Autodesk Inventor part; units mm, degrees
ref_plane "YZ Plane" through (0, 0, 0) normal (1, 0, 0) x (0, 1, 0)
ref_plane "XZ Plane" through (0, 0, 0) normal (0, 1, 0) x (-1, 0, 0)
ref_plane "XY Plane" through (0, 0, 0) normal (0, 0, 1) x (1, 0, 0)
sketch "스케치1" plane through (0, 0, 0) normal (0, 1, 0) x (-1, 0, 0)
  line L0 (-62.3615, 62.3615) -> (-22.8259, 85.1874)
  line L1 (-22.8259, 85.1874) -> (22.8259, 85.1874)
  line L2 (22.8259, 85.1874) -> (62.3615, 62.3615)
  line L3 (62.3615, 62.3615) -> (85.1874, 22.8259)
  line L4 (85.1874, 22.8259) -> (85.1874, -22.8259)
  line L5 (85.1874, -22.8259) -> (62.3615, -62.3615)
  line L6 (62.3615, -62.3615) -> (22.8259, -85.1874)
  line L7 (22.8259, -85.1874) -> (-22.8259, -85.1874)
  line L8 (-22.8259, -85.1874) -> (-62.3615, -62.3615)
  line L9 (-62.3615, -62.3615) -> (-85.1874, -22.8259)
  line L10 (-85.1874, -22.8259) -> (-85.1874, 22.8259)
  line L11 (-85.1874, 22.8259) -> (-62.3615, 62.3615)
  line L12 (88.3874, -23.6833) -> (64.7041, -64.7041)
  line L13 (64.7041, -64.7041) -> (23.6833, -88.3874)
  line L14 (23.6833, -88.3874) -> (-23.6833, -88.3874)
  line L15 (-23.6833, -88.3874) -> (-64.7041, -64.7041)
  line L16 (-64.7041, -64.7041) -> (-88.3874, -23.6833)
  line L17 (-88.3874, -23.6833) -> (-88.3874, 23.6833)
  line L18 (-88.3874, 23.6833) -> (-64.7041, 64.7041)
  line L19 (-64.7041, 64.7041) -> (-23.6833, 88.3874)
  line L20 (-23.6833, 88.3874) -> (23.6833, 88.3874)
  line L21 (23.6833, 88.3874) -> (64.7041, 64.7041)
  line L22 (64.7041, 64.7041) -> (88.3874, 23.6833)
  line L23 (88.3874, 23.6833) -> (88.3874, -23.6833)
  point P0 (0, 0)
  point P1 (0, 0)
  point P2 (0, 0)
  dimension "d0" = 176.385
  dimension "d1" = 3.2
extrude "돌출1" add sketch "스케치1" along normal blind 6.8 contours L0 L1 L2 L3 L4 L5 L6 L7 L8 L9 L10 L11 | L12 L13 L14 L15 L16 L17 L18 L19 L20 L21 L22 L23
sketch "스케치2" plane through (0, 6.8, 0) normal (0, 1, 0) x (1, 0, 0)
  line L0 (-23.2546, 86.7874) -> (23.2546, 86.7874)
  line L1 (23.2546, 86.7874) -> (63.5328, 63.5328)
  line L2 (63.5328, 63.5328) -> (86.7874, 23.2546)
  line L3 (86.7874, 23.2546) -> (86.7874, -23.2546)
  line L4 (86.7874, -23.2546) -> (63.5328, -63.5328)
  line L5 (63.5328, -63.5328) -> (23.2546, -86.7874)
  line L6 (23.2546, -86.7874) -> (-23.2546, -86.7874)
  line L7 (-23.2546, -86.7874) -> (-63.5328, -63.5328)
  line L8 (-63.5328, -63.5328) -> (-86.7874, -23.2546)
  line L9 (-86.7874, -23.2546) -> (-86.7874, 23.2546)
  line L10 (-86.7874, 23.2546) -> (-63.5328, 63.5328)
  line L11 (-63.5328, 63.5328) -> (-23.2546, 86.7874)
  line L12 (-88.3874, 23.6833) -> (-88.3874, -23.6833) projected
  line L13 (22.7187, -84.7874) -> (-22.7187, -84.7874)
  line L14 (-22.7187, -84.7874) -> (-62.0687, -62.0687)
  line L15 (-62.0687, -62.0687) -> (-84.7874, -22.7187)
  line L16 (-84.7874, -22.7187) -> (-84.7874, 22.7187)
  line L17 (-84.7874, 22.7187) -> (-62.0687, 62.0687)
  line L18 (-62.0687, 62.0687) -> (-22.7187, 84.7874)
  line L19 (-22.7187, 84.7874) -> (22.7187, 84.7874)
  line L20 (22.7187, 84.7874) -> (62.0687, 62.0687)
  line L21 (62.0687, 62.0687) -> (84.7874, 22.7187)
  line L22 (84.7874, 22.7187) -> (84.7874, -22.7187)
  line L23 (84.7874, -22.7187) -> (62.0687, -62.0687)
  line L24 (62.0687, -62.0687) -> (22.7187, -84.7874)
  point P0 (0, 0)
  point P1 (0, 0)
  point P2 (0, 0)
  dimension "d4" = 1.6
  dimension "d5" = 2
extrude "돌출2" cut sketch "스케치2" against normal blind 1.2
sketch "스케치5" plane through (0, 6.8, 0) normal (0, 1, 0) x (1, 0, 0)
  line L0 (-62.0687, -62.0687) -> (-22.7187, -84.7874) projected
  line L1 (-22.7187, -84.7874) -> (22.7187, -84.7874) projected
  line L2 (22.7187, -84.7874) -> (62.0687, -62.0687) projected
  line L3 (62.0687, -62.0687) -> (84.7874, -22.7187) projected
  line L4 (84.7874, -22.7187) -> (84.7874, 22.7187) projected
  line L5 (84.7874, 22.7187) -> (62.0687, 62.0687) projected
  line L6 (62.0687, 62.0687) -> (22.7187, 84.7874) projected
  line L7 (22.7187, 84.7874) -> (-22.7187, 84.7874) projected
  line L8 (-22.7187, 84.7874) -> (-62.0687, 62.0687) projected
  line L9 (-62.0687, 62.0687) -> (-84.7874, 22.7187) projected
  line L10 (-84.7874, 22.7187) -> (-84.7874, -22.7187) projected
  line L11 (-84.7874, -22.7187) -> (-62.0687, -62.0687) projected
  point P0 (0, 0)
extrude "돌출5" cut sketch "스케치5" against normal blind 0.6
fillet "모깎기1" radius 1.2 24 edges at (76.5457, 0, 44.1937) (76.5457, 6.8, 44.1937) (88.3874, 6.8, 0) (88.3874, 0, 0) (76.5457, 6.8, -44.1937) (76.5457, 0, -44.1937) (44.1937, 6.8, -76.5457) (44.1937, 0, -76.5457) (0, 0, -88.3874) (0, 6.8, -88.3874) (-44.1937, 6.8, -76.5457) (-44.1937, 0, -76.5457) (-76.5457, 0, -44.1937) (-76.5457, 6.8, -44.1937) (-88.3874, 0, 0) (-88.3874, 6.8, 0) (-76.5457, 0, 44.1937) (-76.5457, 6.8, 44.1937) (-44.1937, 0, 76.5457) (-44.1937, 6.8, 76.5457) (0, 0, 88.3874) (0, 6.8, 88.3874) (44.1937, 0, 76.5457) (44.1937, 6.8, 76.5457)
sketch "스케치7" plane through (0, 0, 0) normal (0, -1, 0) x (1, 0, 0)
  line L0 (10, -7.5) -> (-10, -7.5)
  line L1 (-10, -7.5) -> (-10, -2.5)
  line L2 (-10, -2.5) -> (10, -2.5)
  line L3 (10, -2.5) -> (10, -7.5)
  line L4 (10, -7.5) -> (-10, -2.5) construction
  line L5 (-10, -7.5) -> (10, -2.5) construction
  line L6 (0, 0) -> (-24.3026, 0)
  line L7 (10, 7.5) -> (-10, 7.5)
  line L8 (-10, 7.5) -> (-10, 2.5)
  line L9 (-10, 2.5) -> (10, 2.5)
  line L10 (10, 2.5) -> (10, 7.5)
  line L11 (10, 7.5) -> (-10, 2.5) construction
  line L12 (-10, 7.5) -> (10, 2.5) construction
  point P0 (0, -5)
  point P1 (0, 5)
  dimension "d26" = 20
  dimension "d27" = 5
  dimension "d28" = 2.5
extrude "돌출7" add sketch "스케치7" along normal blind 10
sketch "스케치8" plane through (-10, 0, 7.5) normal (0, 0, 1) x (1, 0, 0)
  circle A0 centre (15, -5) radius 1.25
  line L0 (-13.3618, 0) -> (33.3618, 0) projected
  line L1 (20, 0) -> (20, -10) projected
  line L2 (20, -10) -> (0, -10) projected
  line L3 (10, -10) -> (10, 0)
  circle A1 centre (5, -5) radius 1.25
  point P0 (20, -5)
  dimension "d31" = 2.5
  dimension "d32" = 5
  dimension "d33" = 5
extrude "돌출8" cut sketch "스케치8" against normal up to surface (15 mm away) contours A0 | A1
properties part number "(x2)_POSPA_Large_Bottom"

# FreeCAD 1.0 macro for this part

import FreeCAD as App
import Part
import Sketcher

V = App.Vector
Q = App.Units.Quantity


def edges_at(feature, points):
    """Names of the edges that pass closest to the given points."""
    edges = feature.Shape.Edges
    near = lambda p: min(range(len(edges)), key=lambda i: edges[i].distToShape(Part.Vertex(*p))[0])
    return sorted({f"Edge{near(p) + 1}" for p in points})

doc = App.newDocument("Part")
body = doc.addObject("PartDesign::Body", "Body")

# Sketch on XZ plane
sketch1 = body.newObject("Sketcher::SketchObject", "Sketch")
sketch1.AttachmentSupport = (doc.getObject("XZ_Plane"), [""])
sketch1.MapMode = "FlatFace"
sketch1.addGeometry([
    Part.LineSegment(V(-65, -65, 0), V(-88, -24, 0)),  # 0
    Part.LineSegment(V(-88, -24, 0), V(-88, 24, 0)),  # 1
    Part.LineSegment(V(-88, 24, 0), V(-65, 65, 0)),  # 2
    Part.LineSegment(V(-65, 65, 0), V(-24, 88, 0)),  # 3
    Part.LineSegment(V(-24, 88, 0), V(24, 88, 0)),  # 4
    Part.LineSegment(V(24, 88, 0), V(65, 65, 0)),  # 5
    Part.LineSegment(V(65, 65, 0), V(88, 24, 0)),  # 6
    Part.LineSegment(V(88, 24, 0), V(88, -24, 0)),  # 7
    Part.LineSegment(V(88, -24, 0), V(65, -65, 0)),  # 8
    Part.LineSegment(V(65, -65, 0), V(24, -88, 0)),  # 9
    Part.LineSegment(V(24, -88, 0), V(-24, -88, 0)),  # 10
    Part.LineSegment(V(-24, -88, 0), V(-65, -65, 0)),  # 11
], False)
sketch1.addConstraint([
    Sketcher.Constraint("Coincident", 0, 2, 1, 1),
    Sketcher.Constraint("Coincident", 1, 2, 2, 1),
    Sketcher.Constraint("Coincident", 2, 2, 3, 1),
    Sketcher.Constraint("Coincident", 3, 2, 4, 1),
    Sketcher.Constraint("Coincident", 4, 2, 5, 1),
    Sketcher.Constraint("Coincident", 5, 2, 6, 1),
    Sketcher.Constraint("Coincident", 6, 2, 7, 1),
    Sketcher.Constraint("Coincident", 7, 2, 8, 1),
    Sketcher.Constraint("Coincident", 8, 2, 9, 1),
    Sketcher.Constraint("Coincident", 9, 2, 10, 1),
    Sketcher.Constraint("Coincident", 10, 2, 11, 1),
    Sketcher.Constraint("Coincident", 11, 2, 0, 1),
    Sketcher.Constraint("Vertical", 1),
    Sketcher.Constraint("Horizontal", 4),
    Sketcher.Constraint("Vertical", 7),
    Sketcher.Constraint("Horizontal", 10),
    Sketcher.Constraint("Symmetric", 0, 2, 6, 2, -1, 1),
    Sketcher.Constraint("Symmetric", 2, 2, 8, 2, -1, 1),
    Sketcher.Constraint("Symmetric", 3, 2, 9, 2, -1, 1),
    Sketcher.Constraint("Symmetric", 5, 2, 11, 2, -1, 1),
    Sketcher.Constraint("Symmetric", 2, 2, 5, 2, -2),
    Sketcher.Constraint("Perpendicular", 0, 3),
    Sketcher.Constraint("Perpendicular", 2, 5),
    Sketcher.Constraint("Perpendicular", 5, 8),
    Sketcher.Constraint("Perpendicular", 8, 11),
    Sketcher.Constraint("Horizontal", 1, 2, 6, 2),
    Sketcher.Constraint("Equal", 10, 1),
    Sketcher.Constraint("Equal", 2, 3),
    Sketcher.Constraint("Angle", 0, Q("120 deg")),
    Sketcher.Constraint("DistanceX", 4, 1, 4, 2, 47.3666),
    Sketcher.Constraint("DistanceX", 2, 2, -1, 1, 64.704),
])
pad1 = body.newObject("PartDesign::Pad", "Pad")
pad1.Profile = sketch1
pad1.Length = 6.8
pad1.Reversed = True

# Sketch on XZ plane
sketch2 = body.newObject("Sketcher::SketchObject", "Sketch001")
sketch2.AttachmentSupport = (doc.getObject("XZ_Plane"), [""])
sketch2.MapMode = "FlatFace"
sketch2.AttachmentOffset = App.Placement(V(0, 0, -6.8), App.Rotation())
sketch2.addGeometry([
    Part.LineSegment(V(23, -87, 0), V(-23, -87, 0)),  # 0
    Part.LineSegment(V(-23, -87, 0), V(-64, -64, 0)),  # 1
    Part.LineSegment(V(-64, -64, 0), V(-87, -23, 0)),  # 2
    Part.LineSegment(V(-87, -23, 0), V(-87, 23, 0)),  # 3
    Part.LineSegment(V(-87, 23, 0), V(-64, 64, 0)),  # 4
    Part.LineSegment(V(-64, 64, 0), V(-23, 87, 0)),  # 5
    Part.LineSegment(V(-23, 87, 0), V(23, 87, 0)),  # 6
    Part.LineSegment(V(23, 87, 0), V(64, 64, 0)),  # 7
    Part.LineSegment(V(64, 64, 0), V(87, 23, 0)),  # 8
    Part.LineSegment(V(87, 23, 0), V(87, -23, 0)),  # 9
    Part.LineSegment(V(87, -23, 0), V(64, -64, 0)),  # 10
    Part.LineSegment(V(64, -64, 0), V(23, -87, 0)),  # 11
    Part.LineSegment(V(62, 62, 0), V(23, 85, 0)),  # 12
    Part.LineSegment(V(23, 85, 0), V(-23, 85, 0)),  # 13
    Part.LineSegment(V(-23, 85, 0), V(-62, 62, 0)),  # 14
    Part.LineSegment(V(-62, 62, 0), V(-85, 23, 0)),  # 15
    Part.LineSegment(V(-85, 23, 0), V(-85, -23, 0)),  # 16
    Part.LineSegment(V(-85, -23, 0), V(-62, -62, 0)),  # 17
    Part.LineSegment(V(-62, -62, 0), V(-23, -85, 0)),  # 18
    Part.LineSegment(V(-23, -85, 0), V(23, -85, 0)),  # 19
    Part.LineSegment(V(23, -85, 0), V(62, -62, 0)),  # 20
    Part.LineSegment(V(62, -62, 0), V(85, -23, 0)),  # 21
    Part.LineSegment(V(85, -23, 0), V(85, 23, 0)),  # 22
    Part.LineSegment(V(85, 23, 0), V(62, 62, 0)),  # 23
], False)
sketch2.addConstraint([
    Sketcher.Constraint("Coincident", 0, 2, 1, 1),
    Sketcher.Constraint("Coincident", 1, 2, 2, 1),
    Sketcher.Constraint("Coincident", 2, 2, 3, 1),
    Sketcher.Constraint("Coincident", 3, 2, 4, 1),
    Sketcher.Constraint("Coincident", 4, 2, 5, 1),
    Sketcher.Constraint("Coincident", 5, 2, 6, 1),
    Sketcher.Constraint("Coincident", 6, 2, 7, 1),
    Sketcher.Constraint("Coincident", 7, 2, 8, 1),
    Sketcher.Constraint("Coincident", 8, 2, 9, 1),
    Sketcher.Constraint("Coincident", 9, 2, 10, 1),
    Sketcher.Constraint("Coincident", 10, 2, 11, 1),
    Sketcher.Constraint("Coincident", 11, 2, 0, 1),
    Sketcher.Constraint("Coincident", 12, 2, 13, 1),
    Sketcher.Constraint("Coincident", 13, 2, 14, 1),
    Sketcher.Constraint("Coincident", 14, 2, 15, 1),
    Sketcher.Constraint("Coincident", 15, 2, 16, 1),
    Sketcher.Constraint("Coincident", 16, 2, 17, 1),
    Sketcher.Constraint("Coincident", 17, 2, 18, 1),
    Sketcher.Constraint("Coincident", 18, 2, 19, 1),
    Sketcher.Constraint("Coincident", 19, 2, 20, 1),
    Sketcher.Constraint("Coincident", 20, 2, 21, 1),
    Sketcher.Constraint("Coincident", 21, 2, 22, 1),
    Sketcher.Constraint("Coincident", 22, 2, 23, 1),
    Sketcher.Constraint("Coincident", 23, 2, 12, 1),
    Sketcher.Constraint("Horizontal", 0),
    Sketcher.Constraint("Vertical", 3),
    Sketcher.Constraint("Horizontal", 6),
    Sketcher.Constraint("Vertical", 9),
    Sketcher.Constraint("Horizontal", 13),
    Sketcher.Constraint("Vertical", 16),
    Sketcher.Constraint("Horizontal", 19),
    Sketcher.Constraint("Vertical", 22),
    Sketcher.Constraint("Symmetric", 0, 2, 6, 2, -1, 1),
    Sketcher.Constraint("Symmetric", 1, 2, 7, 2, -1, 1),
    Sketcher.Constraint("Symmetric", 2, 2, 8, 2, -1, 1),
    Sketcher.Constraint("Symmetric", 4, 2, 10, 2, -1, 1),
    Sketcher.Constraint("Symmetric", 12, 2, 18, 2, -1, 1),
    Sketcher.Constraint("Symmetric", 14, 2, 20, 2, -1, 1),
    Sketcher.Constraint("Symmetric", 15, 2, 21, 2, -1, 1),
    Sketcher.Constraint("Symmetric", 17, 2, 23, 2, -1, 1),
    Sketcher.Constraint("Symmetric", 4, 2, 7, 2, -2),
    Sketcher.Constraint("Symmetric", 17, 2, 20, 2, -2),
    Sketcher.Constraint("Perpendicular", 1, 4),
    Sketcher.Constraint("Perpendicular", 2, 5),
    Sketcher.Constraint("Perpendicular", 7, 10),
    Sketcher.Constraint("Perpendicular", 8, 11),
    Sketcher.Constraint("Perpendicular", 10, 12),
    Sketcher.Constraint("Parallel", 11, 14),
    Sketcher.Constraint("Perpendicular", 12, 15),
    Sketcher.Constraint("Perpendicular", 14, 17),
    Sketcher.Constraint("Perpendicular", 17, 20),
    Sketcher.Constraint("Perpendicular", 20, 23),
    Sketcher.Constraint("Horizontal", 3, 2, 8, 2),
    Sketcher.Constraint("Equal", 6, 3),
    Sketcher.Constraint("Equal", 19, 16),
    Sketcher.Constraint("Equal", 1, 2),
    Sketcher.Constraint("Equal", 14, 15),
    Sketcher.Constraint("DistanceY", 12, 2, 6, 2, 2.0),
    Sketcher.Constraint("Angle", 1, Q("150 deg")),
    Sketcher.Constraint("DistanceX", 14, 2, 13, 2, 39.35),
    Sketcher.Constraint("DistanceX", 0, 2, 0, 1, 46.5092),
    Sketcher.Constraint("DistanceX", 13, 2, 13, 1, 45.4374),
])
pocket1 = body.newObject("PartDesign::Pocket", "Pocket")
pocket1.Profile = sketch2
pocket1.Length = 1.2
pocket1.Reversed = True

# Sketch on XZ plane
sketch3 = body.newObject("Sketcher::SketchObject", "Sketch002")
sketch3.AttachmentSupport = (doc.getObject("XZ_Plane"), [""])
sketch3.MapMode = "FlatFace"
sketch3.AttachmentOffset = App.Placement(V(0, 0, -6.8), App.Rotation())
sketch3.addGeometry([
    Part.LineSegment(V(-85, 23, 0), V(-62, 62, 0)),  # 0
    Part.LineSegment(V(-62, 62, 0), V(-23, 85, 0)),  # 1
    Part.LineSegment(V(-23, 85, 0), V(23, 85, 0)),  # 2
    Part.LineSegment(V(23, 85, 0), V(62, 62, 0)),  # 3
    Part.LineSegment(V(62, 62, 0), V(85, 23, 0)),  # 4
    Part.LineSegment(V(85, 23, 0), V(85, -23, 0)),  # 5
    Part.LineSegment(V(85, -23, 0), V(62, -62, 0)),  # 6
    Part.LineSegment(V(62, -62, 0), V(23, -85, 0)),  # 7
    Part.LineSegment(V(23, -85, 0), V(-23, -85, 0)),  # 8
    Part.LineSegment(V(-23, -85, 0), V(-62, -62, 0)),  # 9
    Part.LineSegment(V(-62, -62, 0), V(-85, -23, 0)),  # 10
    Part.LineSegment(V(-85, -23, 0), V(-85, 23, 0)),  # 11
], False)
sketch3.addConstraint([
    Sketcher.Constraint("Coincident", 0, 2, 1, 1),
    Sketcher.Constraint("Coincident", 1, 2, 2, 1),
    Sketcher.Constraint("Coincident", 2, 2, 3, 1),
    Sketcher.Constraint("Coincident", 3, 2, 4, 1),
    Sketcher.Constraint("Coincident", 4, 2, 5, 1),
    Sketcher.Constraint("Coincident", 5, 2, 6, 1),
    Sketcher.Constraint("Coincident", 6, 2, 7, 1),
    Sketcher.Constraint("Coincident", 7, 2, 8, 1),
    Sketcher.Constraint("Coincident", 8, 2, 9, 1),
    Sketcher.Constraint("Coincident", 9, 2, 10, 1),
    Sketcher.Constraint("Coincident", 10, 2, 11, 1),
    Sketcher.Constraint("Coincident", 11, 2, 0, 1),
    Sketcher.Constraint("Horizontal", 2),
    Sketcher.Constraint("Vertical", 5),
    Sketcher.Constraint("Horizontal", 8),
    Sketcher.Constraint("Vertical", 11),
    Sketcher.Constraint("Symmetric", 0, 2, 6, 2, -1, 1),
    Sketcher.Constraint("Symmetric", 1, 2, 7, 2, -1, 1),
    Sketcher.Constraint("Symmetric", 3, 2, 9, 2, -1, 1),
    Sketcher.Constraint("Symmetric", 4, 2, 10, 2, -1, 1),
    Sketcher.Constraint("Symmetric", 0, 2, 3, 2, -2),
    Sketcher.Constraint("Perpendicular", 0, 3),
    Sketcher.Constraint("Perpendicular", 1, 4),
    Sketcher.Constraint("Perpendicular", 3, 6),
    Sketcher.Constraint("Perpendicular", 6, 9),
    Sketcher.Constraint("Horizontal", 5, 2, 10, 2),
    Sketcher.Constraint("Equal", 8, 5),
    Sketcher.Constraint("Equal", 0, 1),
    Sketcher.Constraint("Angle", 0, Q("60 deg")),
    Sketcher.Constraint("DistanceX", 0, 2, 1, 2, 39.35),
    Sketcher.Constraint("DistanceX", 2, 1, 2, 2, 45.4374),
])
pocket2 = body.newObject("PartDesign::Pocket", "Pocket001")
pocket2.Profile = sketch3
pocket2.Length = 0.6
pocket2.Reversed = True
doc.recompute()

fillet = body.newObject("PartDesign::Fillet", "Fillet")
fillet.Base = (pocket2, edges_at(pocket2, [
    (76.546, 0, 44.194),
    (76.546, 6.8, 44.194),
    (88.387, 6.8, 0),
    (88.387, 0, 0),
    (76.546, 6.8, -44.194),
    (76.546, 0, -44.194),
    (44.194, 6.8, -76.546),
    (44.194, 0, -76.546),
    (0, 0, -88.387),
    (0, 6.8, -88.387),
    (-44.194, 6.8, -76.546),
    (-44.194, 0, -76.546),
    (-76.546, 0, -44.194),
    (-76.546, 6.8, -44.194),
    (-88.387, 0, 0),
    (-88.387, 6.8, 0),
    (-76.546, 0, 44.194),
    (-76.546, 6.8, 44.194),
    (-44.194, 0, 76.546),
    (-44.194, 6.8, 76.546),
    (0, 0, 88.387),
    (0, 6.8, 88.387),
    (44.194, 0, 76.546),
    (44.194, 6.8, 76.546),
]))
fillet.Radius = 1.2

# Sketch on XZ plane
sketch4 = body.newObject("Sketcher::SketchObject", "Sketch003")
sketch4.AttachmentSupport = (doc.getObject("XZ_Plane"), [""])
sketch4.MapMode = "FlatFace"
sketch4.addGeometry([
    Part.LineSegment(V(-10, -8, 0), V(10, -8, 0)),  # 0
    Part.LineSegment(V(10, -8, 0), V(10, -2, 0)),  # 1
    Part.LineSegment(V(10, -2, 0), V(-10, -2, 0)),  # 2
    Part.LineSegment(V(-10, -2, 0), V(-10, -8, 0)),  # 3
    Part.LineSegment(V(10, 2, 0), V(10, 8, 0)),  # 4
    Part.LineSegment(V(10, 8, 0), V(-10, 8, 0)),  # 5
    Part.LineSegment(V(-10, 8, 0), V(-10, 2, 0)),  # 6
    Part.LineSegment(V(-10, 2, 0), V(10, 2, 0)),  # 7
], False)
sketch4.addConstraint([
    Sketcher.Constraint("Coincident", 0, 2, 1, 1),
    Sketcher.Constraint("Coincident", 1, 2, 2, 1),
    Sketcher.Constraint("Coincident", 2, 2, 3, 1),
    Sketcher.Constraint("Coincident", 3, 2, 0, 1),
    Sketcher.Constraint("Coincident", 4, 2, 5, 1),
    Sketcher.Constraint("Coincident", 5, 2, 6, 1),
    Sketcher.Constraint("Coincident", 6, 2, 7, 1),
    Sketcher.Constraint("Coincident", 7, 2, 4, 1),
    Sketcher.Constraint("Horizontal", 0),
    Sketcher.Constraint("Vertical", 1),
    Sketcher.Constraint("Horizontal", 2),
    Sketcher.Constraint("Vertical", 3),
    Sketcher.Constraint("Vertical", 4),
    Sketcher.Constraint("Horizontal", 5),
    Sketcher.Constraint("Vertical", 6),
    Sketcher.Constraint("Horizontal", 7),
    Sketcher.Constraint("Symmetric", 3, 2, 4, 2, -1, 1),
    Sketcher.Constraint("Symmetric", 1, 2, 6, 2, -1, 1),
    Sketcher.Constraint("Vertical", 1, 2, 4, 2),
    Sketcher.Constraint("DistanceX", 0, 1, 0, 2, 20.0),
    Sketcher.Constraint("DistanceY", 1, 1, 1, 2, 5.0),
    Sketcher.Constraint("DistanceY", 2, 2, 6, 2, 5.0),
])
pad2 = body.newObject("PartDesign::Pad", "Pad001")
pad2.Profile = sketch4
pad2.Length = 10

# Sketch on XY plane
sketch5 = body.newObject("Sketcher::SketchObject", "Sketch004")
sketch5.AttachmentSupport = (doc.getObject("XY_Plane"), [""])
sketch5.MapMode = "FlatFace"
sketch5.AttachmentOffset = App.Placement(V(0, 0, 7.5), App.Rotation())
sketch5.addGeometry([
    Part.Circle(V(5, -5, 0), V(0, 0, 1), 1.2),
    Part.Circle(V(-5, -5, 0), V(0, 0, 1), 1.2),
], False)
sketch5.addConstraint([
    Sketcher.Constraint("Equal", 0, 1),
    Sketcher.Constraint("Symmetric", 0, 3, 1, 3, -2),
    Sketcher.Constraint("Diameter", 0, 2.5),
    Sketcher.Constraint("DistanceX", -1, 1, 0, 3, 5.0),
    Sketcher.Constraint("DistanceY", 0, 3, -1, 1, 5.0),
])
pocket3 = body.newObject("PartDesign::Pocket", "Pocket002")
pocket3.Profile = sketch5
pocket3.Length = 15

doc.recompute()
